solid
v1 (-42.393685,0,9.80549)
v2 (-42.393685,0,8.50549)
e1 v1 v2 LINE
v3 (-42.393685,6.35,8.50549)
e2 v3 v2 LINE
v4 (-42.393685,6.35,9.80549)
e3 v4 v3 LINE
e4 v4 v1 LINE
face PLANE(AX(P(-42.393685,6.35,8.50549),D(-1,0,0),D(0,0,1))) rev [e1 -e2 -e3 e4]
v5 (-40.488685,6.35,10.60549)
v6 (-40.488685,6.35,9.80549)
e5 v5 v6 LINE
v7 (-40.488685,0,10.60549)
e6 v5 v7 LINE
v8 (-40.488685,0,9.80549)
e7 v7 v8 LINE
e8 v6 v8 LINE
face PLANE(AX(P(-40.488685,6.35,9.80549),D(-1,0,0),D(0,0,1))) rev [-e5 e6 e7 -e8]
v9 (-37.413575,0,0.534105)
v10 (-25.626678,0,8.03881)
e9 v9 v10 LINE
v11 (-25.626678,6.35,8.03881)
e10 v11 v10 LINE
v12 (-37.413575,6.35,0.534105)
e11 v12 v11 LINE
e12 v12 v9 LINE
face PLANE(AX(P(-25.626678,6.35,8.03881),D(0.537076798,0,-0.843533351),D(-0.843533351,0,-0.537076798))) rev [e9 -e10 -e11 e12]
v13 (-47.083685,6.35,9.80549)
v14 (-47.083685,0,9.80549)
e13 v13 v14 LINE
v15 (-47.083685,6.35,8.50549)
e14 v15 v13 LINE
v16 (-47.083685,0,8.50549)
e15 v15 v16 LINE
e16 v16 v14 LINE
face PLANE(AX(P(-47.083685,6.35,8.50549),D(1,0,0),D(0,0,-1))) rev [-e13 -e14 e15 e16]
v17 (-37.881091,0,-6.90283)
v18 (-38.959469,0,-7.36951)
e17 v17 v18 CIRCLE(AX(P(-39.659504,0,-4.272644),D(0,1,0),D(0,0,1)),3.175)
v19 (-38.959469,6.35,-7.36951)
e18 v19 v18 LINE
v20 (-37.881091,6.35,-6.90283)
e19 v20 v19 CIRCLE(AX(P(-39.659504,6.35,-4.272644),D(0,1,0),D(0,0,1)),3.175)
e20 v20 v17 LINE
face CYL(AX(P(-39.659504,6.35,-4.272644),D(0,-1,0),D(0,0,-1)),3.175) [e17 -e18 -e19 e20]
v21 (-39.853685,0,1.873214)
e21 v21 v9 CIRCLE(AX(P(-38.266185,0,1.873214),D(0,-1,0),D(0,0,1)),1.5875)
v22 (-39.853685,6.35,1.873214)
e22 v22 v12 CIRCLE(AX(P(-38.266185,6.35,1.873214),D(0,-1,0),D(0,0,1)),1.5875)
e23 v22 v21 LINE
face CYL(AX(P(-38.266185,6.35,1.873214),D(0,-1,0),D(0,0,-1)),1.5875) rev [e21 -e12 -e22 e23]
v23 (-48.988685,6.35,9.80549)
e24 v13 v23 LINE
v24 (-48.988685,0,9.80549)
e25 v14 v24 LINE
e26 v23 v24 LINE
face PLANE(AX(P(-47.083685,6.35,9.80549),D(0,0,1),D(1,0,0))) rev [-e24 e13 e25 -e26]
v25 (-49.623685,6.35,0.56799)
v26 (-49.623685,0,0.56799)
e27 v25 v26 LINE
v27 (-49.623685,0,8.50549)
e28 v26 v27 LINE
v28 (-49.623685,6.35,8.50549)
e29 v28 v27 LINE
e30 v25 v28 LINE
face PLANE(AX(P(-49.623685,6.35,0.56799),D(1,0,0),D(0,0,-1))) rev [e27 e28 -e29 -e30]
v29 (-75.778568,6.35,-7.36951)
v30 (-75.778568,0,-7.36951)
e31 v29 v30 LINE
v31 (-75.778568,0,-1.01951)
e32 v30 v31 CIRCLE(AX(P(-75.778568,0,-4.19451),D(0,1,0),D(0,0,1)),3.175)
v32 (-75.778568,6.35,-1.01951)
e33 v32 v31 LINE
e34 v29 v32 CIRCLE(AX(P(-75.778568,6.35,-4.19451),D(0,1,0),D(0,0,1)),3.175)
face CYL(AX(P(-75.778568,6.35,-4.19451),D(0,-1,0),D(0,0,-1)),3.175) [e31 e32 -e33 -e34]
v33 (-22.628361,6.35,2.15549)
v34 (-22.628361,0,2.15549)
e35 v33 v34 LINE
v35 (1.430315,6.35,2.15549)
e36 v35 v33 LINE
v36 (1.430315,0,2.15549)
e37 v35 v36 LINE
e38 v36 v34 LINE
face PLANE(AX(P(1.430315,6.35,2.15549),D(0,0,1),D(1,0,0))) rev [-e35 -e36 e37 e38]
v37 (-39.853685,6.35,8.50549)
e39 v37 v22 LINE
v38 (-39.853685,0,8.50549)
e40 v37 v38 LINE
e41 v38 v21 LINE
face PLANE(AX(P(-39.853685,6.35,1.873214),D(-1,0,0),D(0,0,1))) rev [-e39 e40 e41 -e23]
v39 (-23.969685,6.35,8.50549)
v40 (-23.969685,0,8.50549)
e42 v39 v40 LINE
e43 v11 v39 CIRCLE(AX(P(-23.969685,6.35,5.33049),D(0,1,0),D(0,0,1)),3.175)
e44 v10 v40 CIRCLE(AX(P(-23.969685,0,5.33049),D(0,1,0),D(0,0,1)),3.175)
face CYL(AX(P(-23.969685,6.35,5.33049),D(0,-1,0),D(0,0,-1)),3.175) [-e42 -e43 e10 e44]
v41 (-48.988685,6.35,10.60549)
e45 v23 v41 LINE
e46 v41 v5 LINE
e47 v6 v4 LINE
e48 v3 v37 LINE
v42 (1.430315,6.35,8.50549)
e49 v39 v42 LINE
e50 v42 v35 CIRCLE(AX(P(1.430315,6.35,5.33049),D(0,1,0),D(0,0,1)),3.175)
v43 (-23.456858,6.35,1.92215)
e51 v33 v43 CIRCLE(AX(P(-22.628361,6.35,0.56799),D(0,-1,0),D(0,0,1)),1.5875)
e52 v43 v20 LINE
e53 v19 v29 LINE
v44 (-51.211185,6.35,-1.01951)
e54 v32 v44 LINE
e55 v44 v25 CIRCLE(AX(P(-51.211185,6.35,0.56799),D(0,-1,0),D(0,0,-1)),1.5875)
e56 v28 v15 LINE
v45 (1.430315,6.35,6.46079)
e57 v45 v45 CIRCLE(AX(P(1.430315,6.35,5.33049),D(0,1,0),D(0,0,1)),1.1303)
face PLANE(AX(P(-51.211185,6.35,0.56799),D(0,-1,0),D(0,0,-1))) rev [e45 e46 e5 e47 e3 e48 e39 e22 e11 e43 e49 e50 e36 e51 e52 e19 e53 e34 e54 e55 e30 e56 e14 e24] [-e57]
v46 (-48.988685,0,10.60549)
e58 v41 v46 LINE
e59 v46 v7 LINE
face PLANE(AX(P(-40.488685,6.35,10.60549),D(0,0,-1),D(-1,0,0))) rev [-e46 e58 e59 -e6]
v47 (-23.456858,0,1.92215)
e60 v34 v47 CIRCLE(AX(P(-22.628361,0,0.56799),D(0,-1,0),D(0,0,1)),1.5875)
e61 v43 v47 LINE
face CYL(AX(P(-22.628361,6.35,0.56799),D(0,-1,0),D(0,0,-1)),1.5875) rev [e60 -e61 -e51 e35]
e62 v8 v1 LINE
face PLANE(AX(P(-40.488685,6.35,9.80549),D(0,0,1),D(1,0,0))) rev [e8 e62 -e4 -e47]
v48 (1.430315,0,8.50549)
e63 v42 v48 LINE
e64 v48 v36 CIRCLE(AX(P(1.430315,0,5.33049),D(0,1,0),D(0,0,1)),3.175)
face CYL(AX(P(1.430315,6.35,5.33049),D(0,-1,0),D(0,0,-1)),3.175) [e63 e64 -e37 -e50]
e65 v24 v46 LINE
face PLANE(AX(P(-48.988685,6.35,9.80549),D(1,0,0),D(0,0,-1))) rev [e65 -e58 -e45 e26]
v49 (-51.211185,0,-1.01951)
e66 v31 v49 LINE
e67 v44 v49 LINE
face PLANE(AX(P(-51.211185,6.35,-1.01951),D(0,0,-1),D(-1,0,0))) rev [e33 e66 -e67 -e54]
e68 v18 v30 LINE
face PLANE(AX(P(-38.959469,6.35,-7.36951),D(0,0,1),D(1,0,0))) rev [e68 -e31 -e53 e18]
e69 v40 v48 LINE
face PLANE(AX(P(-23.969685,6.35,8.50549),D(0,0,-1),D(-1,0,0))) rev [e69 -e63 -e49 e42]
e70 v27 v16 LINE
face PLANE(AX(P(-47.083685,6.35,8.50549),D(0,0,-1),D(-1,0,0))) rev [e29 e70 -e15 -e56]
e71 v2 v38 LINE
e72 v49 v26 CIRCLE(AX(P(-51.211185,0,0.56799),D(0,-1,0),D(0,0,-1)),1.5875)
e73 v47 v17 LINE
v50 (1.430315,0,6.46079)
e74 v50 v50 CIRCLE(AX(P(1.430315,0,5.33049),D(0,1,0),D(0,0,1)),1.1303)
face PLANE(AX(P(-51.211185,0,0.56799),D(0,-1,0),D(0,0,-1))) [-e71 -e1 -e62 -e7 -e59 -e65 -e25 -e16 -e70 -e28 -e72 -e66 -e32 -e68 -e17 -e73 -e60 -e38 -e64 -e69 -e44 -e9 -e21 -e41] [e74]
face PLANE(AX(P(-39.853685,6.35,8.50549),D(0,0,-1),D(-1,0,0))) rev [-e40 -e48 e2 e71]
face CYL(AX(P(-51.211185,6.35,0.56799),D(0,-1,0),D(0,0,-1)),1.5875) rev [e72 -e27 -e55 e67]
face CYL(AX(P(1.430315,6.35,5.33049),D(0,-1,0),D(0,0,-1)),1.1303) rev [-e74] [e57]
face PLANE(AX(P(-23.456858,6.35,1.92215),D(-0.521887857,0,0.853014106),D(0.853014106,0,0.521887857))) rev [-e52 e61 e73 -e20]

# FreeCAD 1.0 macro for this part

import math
import FreeCAD as App
import Part
import Sketcher
Q = App.Units.Quantity

doc = App.newDocument("Part")
body = doc.addObject("PartDesign::Body", "Body")

# Sketch on XZ plane
sketch1 = body.newObject("Sketcher::SketchObject", "Sketch")
sketch1.AttachmentSupport = (doc.getObject("XZ_Plane"), [""])
sketch1.MapMode = "FlatFace"
sketch1.addGeometry([
    Part.LineSegment(App.Vector(1.4, 2.2, 0), App.Vector(-22.6, 2.2, 0)),  # 0
    Part.ArcOfCircle(Part.Circle(App.Vector(-22.6, 0.6, 0), App.Vector(0, 0, 1), 1.6), math.radians(90), math.radians(121)),  # 1
    Part.LineSegment(App.Vector(-23.5, 1.9, 0), App.Vector(-37.9, -6.9, 0)),  # 2
    Part.ArcOfCircle(Part.Circle(App.Vector(-39.7, -4.3, 0), App.Vector(0, 0, 1), 3.2), math.radians(-77), math.radians(-56)),  # 3
    Part.LineSegment(App.Vector(-39, -7.4, 0), App.Vector(-75.8, -7.4, 0)),  # 4
    Part.ArcOfCircle(Part.Circle(App.Vector(-75.8, -4.2, 0), App.Vector(0, 0, 1), 3.2), math.radians(90), math.radians(270)),  # 5
    Part.LineSegment(App.Vector(-75.8, -1, 0), App.Vector(-51.2, -1, 0)),  # 6
    Part.ArcOfCircle(Part.Circle(App.Vector(-51.2, 0.6, 0), App.Vector(0, 0, 1), 1.6), math.radians(-90), math.radians(0)),  # 7
    Part.LineSegment(App.Vector(-49.6, 0.6, 0), App.Vector(-49.6, 8.5, 0)),  # 8
    Part.LineSegment(App.Vector(-49.6, 8.5, 0), App.Vector(-47.1, 8.5, 0)),  # 9
    Part.LineSegment(App.Vector(-47.1, 8.5, 0), App.Vector(-47.1, 9.8, 0)),  # 10
    Part.LineSegment(App.Vector(-47.1, 9.8, 0), App.Vector(-49, 9.8, 0)),  # 11
    Part.LineSegment(App.Vector(-49, 9.8, 0), App.Vector(-49, 10.6, 0)),  # 12
    Part.LineSegment(App.Vector(-49, 10.6, 0), App.Vector(-40.5, 10.6, 0)),  # 13
    Part.LineSegment(App.Vector(-40.5, 10.6, 0), App.Vector(-40.5, 9.8, 0)),  # 14
    Part.LineSegment(App.Vector(-40.5, 9.8, 0), App.Vector(-42.4, 9.8, 0)),  # 15
    Part.LineSegment(App.Vector(-42.4, 9.8, 0), App.Vector(-42.4, 8.5, 0)),  # 16
    Part.LineSegment(App.Vector(-42.4, 8.5, 0), App.Vector(-39.9, 8.5, 0)),  # 17
    Part.LineSegment(App.Vector(-39.9, 8.5, 0), App.Vector(-39.9, 1.9, 0)),  # 18
    Part.ArcOfCircle(Part.Circle(App.Vector(-38.3, 1.9, 0), App.Vector(0, 0, 1), 1.6), math.radians(-180), math.radians(-58)),  # 19
    Part.LineSegment(App.Vector(-37.4, 0.5, 0), App.Vector(-25.6, 8, 0)),  # 20
    Part.ArcOfCircle(Part.Circle(App.Vector(-24, 5.3, 0), App.Vector(0, 0, 1), 3.2), math.radians(90), math.radians(121)),  # 21
    Part.LineSegment(App.Vector(-24, 8.5, 0), App.Vector(1.4, 8.5, 0)),  # 22
    Part.ArcOfCircle(Part.Circle(App.Vector(1.4, 5.3, 0), App.Vector(0, 0, 1), 3.2), math.radians(-90), math.radians(90)),  # 23
    Part.Circle(App.Vector(1.4, 5.3, 0), App.Vector(0, 0, 1), 1.1),  # 24
], False)
sketch1.addConstraint([
    Sketcher.Constraint("Tangent", 0, 2, 1, 1),
    Sketcher.Constraint("Tangent", 1, 2, 2, 1),
    Sketcher.Constraint("Coincident", 2, 2, 3, 2),
    Sketcher.Constraint("Coincident", 3, 1, 4, 1),
    Sketcher.Constraint("Tangent", 4, 2, 5, 2),
    Sketcher.Constraint("Tangent", 5, 1, 6, 1),
    Sketcher.Constraint("Tangent", 6, 2, 7, 1),
    Sketcher.Constraint("Tangent", 7, 2, 8, 1),
    Sketcher.Constraint("Coincident", 8, 2, 9, 1),
    Sketcher.Constraint("Coincident", 9, 2, 10, 1),
    Sketcher.Constraint("Coincident", 10, 2, 11, 1),
    Sketcher.Constraint("Coincident", 11, 2, 12, 1),
    Sketcher.Constraint("Coincident", 12, 2, 13, 1),
    Sketcher.Constraint("Coincident", 13, 2, 14, 1),
    Sketcher.Constraint("Coincident", 14, 2, 15, 1),
    Sketcher.Constraint("Coincident", 15, 2, 16, 1),
    Sketcher.Constraint("Coincident", 16, 2, 17, 1),
    Sketcher.Constraint("Coincident", 17, 2, 18, 1),
    Sketcher.Constraint("Tangent", 18, 2, 19, 1),
    Sketcher.Constraint("Tangent", 19, 2, 20, 1),
    Sketcher.Constraint("Coincident", 20, 2, 21, 2),
    Sketcher.Constraint("Tangent", 21, 1, 22, 1),
    Sketcher.Constraint("Tangent", 22, 2, 23, 2),
    Sketcher.Constraint("Tangent", 23, 1, 0, 1),
    Sketcher.Constraint("Horizontal", 0),
    Sketcher.Constraint("Horizontal", 4),
    Sketcher.Constraint("Horizontal", 6),
    Sketcher.Constraint("Vertical", 8),
    Sketcher.Constraint("Horizontal", 9),
    Sketcher.Constraint("Vertical", 10),
    Sketcher.Constraint("Horizontal", 11),
    Sketcher.Constraint("Vertical", 12),
    Sketcher.Constraint("Horizontal", 13),
    Sketcher.Constraint("Vertical", 14),
    Sketcher.Constraint("Horizontal", 15),
    Sketcher.Constraint("Vertical", 16),
    Sketcher.Constraint("Horizontal", 17),
    Sketcher.Constraint("Vertical", 18),
    Sketcher.Constraint("Horizontal", 22),
    Sketcher.Constraint("Coincident", 24, 3, 23, 3),
    Sketcher.Constraint("Equal", 3, 5),
    Sketcher.Constraint("Equal", 1, 7),
    Sketcher.Constraint("Equal", 7, 19),
    Sketcher.Constraint("Equal", 5, 21),
    Sketcher.Constraint("Equal", 21, 23),
    Sketcher.Constraint("Horizontal", 1, 3, 7, 3),
    Sketcher.Constraint("Horizontal", 11, 2, 14, 2),
    Sketcher.Constraint("Horizontal", 9, 2, 16, 2),
    Sketcher.Constraint("Horizontal", 17, 2, 21, 1),
    Sketcher.Constraint("Equal", 11, 15),
    Sketcher.Constraint("Equal", 9, 17),
    Sketcher.Constraint("DistanceX", 22, 1, 22, 2, Q("1 in")),
    Sketcher.Constraint("Diameter", 24, Q("0.089 in")),
    Sketcher.Constraint("DistanceX", 9, 1, 9, 2, Q("0.1 in")),
    Sketcher.Constraint("Radius", 1, Q("0.0625 in")),
    Sketcher.Constraint("Radius", 3, Q("0.125 in")),
    Sketcher.Constraint("DistanceX", 11, 2, 11, 1, Q("0.075 in")),
    Sketcher.Constraint("DistanceX", 4, 2, 4, 1, Q("36.819099 mm")),
    Sketcher.Constraint("DistanceX", 13, 1, 13, 2, Q("8.5 mm")),
    Sketcher.Constraint("DistanceY", 10, 1, 10, 2, Q("1.3 mm")),
    Sketcher.Constraint("DistanceY", 12, 1, 12, 2, Q("0.8 mm")),
    Sketcher.Constraint("DistanceX", 7, 3, 21, 3, Q("1.0725 in")),
    Sketcher.Constraint("DistanceX", 0, 2, 0, 1, Q("24.058677 mm")),
    Sketcher.Constraint("DistanceX", 6, 1, 6, 2, Q("24.567384 mm")),
    Sketcher.Constraint("DistanceY", 18, 2, 18, 1, Q("6.632276 mm")),
    Sketcher.Constraint("DistanceX", 1, 3, -1, 1, Q("22.628361 mm")),
    Sketcher.Constraint("DistanceY", -1, 1, 1, 3, Q("0.56799 mm")),
    Sketcher.Constraint("DistanceX", 1, 2, -1, 1, Q("23.456858 mm")),
    Sketcher.Constraint("DistanceX", 2, 2, -1, 1, Q("37.881091 mm")),
    Sketcher.Constraint("DistanceX", 20, 2, -1, 1, Q("25.626678 mm")),
])
pad1 = body.newObject("PartDesign::Pad", "Pad")
pad1.Profile = sketch1
pad1.Length = Q("0.25 in")
pad1.Reversed = True

doc.recompute()
